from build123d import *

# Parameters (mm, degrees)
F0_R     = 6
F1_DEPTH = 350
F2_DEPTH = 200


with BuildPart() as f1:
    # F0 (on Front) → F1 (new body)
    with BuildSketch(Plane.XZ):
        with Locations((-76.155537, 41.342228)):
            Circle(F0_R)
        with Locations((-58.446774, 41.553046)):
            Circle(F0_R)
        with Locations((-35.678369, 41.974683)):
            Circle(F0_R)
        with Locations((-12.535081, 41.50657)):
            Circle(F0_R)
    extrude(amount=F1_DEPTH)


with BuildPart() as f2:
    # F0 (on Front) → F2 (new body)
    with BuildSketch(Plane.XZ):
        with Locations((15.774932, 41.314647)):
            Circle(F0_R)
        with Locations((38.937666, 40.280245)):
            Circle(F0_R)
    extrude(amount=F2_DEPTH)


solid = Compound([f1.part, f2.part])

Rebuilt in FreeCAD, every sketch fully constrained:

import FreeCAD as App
import Part
import Sketcher
Q = App.Units.Quantity

doc = App.newDocument("Part")
body = doc.addObject("PartDesign::Body", "Body")
body.AllowCompound = True

# Sketch on XZ plane
sketch1 = body.newObject("Sketcher::SketchObject", "Sketch")
sketch1.AttachmentSupport = (doc.getObject("XZ_Plane"), [""])
sketch1.MapMode = "FlatFace"
sketch1.addGeometry([
    Part.Circle(App.Vector(-76, 41, 0), App.Vector(0, 0, 1), 6),
    Part.Circle(App.Vector(-58, 42, 0), App.Vector(0, 0, 1), 6),
    Part.Circle(App.Vector(-36, 42, 0), App.Vector(0, 0, 1), 6),
    Part.Circle(App.Vector(-13, 42, 0), App.Vector(0, 0, 1), 6),
], False)
sketch1.addConstraint([
    Sketcher.Constraint("Equal", 0, 1),
    Sketcher.Constraint("Equal", 1, 2),
    Sketcher.Constraint("Equal", 2, 3),
    Sketcher.Constraint("Diameter", 0, Q("12 mm")),
    Sketcher.Constraint("DistanceX", 2, 3, -1, 1, Q("35.678369 mm")),
    Sketcher.Constraint("DistanceX", 3, 3, -1, 1, Q("12.535081 mm")),
    Sketcher.Constraint("DistanceY", -1, 1, 3, 3, Q("41.50657 mm")),
    Sketcher.Constraint("DistanceY", 0, 3, 1, 3, Q("0.210818 mm")),
    Sketcher.Constraint("DistanceX", 0, 3, -1, 1, Q("76.155537 mm")),
    Sketcher.Constraint("DistanceY", -1, 1, 0, 3, Q("41.342228 mm")),
    Sketcher.Constraint("DistanceX", 1, 3, -1, 1, Q("58.446774 mm")),
    Sketcher.Constraint("DistanceY", -1, 1, 2, 3, Q("41.974683 mm")),
])
pad1 = body.newObject("PartDesign::Pad", "Pad")
pad1.Profile = sketch1
pad1.Length = 350
body2 = doc.addObject("PartDesign::Body", "Body001")
body2.AllowCompound = True

# Sketch on XZ plane
sketch2 = body2.newObject("Sketcher::SketchObject", "Sketch001")
sketch2.AttachmentSupport = (doc.getObject("XZ_Plane001"), [""])
sketch2.MapMode = "FlatFace"
sketch2.addGeometry([
    Part.Circle(App.Vector(16, 41, 0), App.Vector(0, 0, 1), 6),
    Part.Circle(App.Vector(39, 40, 0), App.Vector(0, 0, 1), 6),
], False)
sketch2.addConstraint([
    Sketcher.Constraint("Equal", 0, 1),
    Sketcher.Constraint("Diameter", 0, Q("12 mm")),
    Sketcher.Constraint("DistanceX", -1, 1, 0, 3, Q("15.774932 mm")),
    Sketcher.Constraint("DistanceY", -1, 1, 0, 3, Q("41.314647 mm")),
    Sketcher.Constraint("DistanceX", -1, 1, 1, 3, Q("38.937666 mm")),
    Sketcher.Constraint("DistanceY", -1, 1, 1, 3, Q("40.280245 mm")),
])
pad2 = body2.newObject("PartDesign::Pad", "Pad001")
pad2.Profile = sketch2
pad2.Length = 200

doc.recompute()
